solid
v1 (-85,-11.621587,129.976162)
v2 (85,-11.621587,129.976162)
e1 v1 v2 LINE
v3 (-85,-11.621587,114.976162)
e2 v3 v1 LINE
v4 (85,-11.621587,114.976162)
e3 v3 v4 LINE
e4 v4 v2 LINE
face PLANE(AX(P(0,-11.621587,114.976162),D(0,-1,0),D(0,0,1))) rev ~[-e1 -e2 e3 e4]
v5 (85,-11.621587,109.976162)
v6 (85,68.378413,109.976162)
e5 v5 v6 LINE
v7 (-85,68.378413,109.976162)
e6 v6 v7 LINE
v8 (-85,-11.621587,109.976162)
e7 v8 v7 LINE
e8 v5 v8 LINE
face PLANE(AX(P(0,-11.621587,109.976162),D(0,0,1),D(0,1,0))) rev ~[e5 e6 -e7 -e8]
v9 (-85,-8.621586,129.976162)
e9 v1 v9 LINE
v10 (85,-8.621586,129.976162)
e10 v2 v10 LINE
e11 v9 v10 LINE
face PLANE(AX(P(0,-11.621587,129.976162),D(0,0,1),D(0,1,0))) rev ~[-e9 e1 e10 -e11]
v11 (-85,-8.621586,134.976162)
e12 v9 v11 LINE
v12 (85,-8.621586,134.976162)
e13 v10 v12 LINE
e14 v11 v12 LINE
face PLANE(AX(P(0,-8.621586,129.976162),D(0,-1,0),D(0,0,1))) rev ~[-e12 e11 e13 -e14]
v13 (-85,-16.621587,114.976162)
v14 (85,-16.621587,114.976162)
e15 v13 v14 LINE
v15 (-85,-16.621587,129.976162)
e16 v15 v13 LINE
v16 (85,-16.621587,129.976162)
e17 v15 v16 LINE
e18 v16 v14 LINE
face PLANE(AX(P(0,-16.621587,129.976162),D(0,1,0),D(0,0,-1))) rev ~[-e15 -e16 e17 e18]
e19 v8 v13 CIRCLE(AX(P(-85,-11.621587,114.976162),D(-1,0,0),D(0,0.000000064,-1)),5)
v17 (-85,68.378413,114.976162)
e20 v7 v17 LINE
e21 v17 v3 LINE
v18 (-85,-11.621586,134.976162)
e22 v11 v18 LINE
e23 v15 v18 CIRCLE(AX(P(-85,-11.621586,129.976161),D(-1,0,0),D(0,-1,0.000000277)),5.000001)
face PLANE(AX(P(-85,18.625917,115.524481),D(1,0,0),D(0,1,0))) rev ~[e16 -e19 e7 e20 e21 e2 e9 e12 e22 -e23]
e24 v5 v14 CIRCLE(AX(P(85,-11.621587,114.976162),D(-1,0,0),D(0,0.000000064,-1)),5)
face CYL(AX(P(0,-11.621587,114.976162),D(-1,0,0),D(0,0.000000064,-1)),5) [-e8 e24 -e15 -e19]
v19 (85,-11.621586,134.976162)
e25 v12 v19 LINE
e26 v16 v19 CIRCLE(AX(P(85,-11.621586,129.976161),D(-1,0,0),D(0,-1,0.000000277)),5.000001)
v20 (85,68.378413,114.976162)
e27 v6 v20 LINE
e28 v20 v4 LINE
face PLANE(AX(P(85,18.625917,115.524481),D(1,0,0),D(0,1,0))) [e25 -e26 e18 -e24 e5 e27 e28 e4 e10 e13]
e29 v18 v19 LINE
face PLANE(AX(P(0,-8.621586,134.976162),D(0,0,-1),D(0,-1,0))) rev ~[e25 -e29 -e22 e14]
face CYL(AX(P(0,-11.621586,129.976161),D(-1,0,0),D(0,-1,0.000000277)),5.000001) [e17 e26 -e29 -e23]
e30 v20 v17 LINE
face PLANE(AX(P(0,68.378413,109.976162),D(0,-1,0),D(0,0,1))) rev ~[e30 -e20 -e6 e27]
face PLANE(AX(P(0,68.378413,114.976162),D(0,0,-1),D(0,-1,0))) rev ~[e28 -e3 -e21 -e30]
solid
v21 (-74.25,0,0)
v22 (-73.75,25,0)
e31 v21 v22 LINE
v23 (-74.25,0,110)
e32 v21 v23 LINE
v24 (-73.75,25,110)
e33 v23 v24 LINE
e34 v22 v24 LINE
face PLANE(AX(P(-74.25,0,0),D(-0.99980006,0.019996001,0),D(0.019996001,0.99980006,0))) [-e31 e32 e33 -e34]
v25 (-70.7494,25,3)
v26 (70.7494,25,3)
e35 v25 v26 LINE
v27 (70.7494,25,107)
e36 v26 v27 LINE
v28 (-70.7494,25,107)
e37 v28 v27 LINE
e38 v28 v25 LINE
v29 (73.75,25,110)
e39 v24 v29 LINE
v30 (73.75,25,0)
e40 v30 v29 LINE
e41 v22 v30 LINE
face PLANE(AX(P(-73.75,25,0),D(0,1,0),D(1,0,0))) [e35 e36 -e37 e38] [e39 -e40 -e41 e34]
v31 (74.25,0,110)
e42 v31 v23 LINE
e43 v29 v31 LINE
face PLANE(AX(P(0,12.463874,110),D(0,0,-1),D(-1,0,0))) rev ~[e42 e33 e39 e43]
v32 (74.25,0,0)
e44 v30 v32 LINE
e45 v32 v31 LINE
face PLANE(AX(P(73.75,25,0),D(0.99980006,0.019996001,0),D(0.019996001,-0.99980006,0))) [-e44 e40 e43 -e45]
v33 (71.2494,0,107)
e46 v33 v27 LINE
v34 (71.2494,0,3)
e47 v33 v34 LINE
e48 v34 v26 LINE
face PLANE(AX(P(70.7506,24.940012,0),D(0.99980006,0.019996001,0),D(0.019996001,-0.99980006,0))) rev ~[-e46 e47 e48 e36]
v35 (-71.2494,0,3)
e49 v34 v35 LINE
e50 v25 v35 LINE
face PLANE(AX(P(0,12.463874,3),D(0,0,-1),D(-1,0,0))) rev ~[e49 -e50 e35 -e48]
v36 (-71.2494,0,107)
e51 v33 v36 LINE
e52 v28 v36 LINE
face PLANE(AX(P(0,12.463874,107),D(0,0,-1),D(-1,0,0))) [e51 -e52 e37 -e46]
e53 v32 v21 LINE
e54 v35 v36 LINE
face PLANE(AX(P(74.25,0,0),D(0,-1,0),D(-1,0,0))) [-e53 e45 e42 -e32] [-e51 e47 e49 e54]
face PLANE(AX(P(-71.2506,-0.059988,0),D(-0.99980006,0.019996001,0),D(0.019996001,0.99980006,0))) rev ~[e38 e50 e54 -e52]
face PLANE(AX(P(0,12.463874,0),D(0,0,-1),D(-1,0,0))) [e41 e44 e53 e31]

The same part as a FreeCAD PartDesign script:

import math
import FreeCAD as App
import Part
import Sketcher
from FreeCAD import Vector


def faces_at(feature, points):
    """Names of the faces that lie closest to the given points."""
    faces = feature.Shape.Faces
    near = lambda p: min(range(len(faces)), key=lambda i: faces[i].distToShape(Part.Vertex(*p))[0])
    return sorted({f"Face{near(p) + 1}" for p in points})


def add_polygon(sketch, points):
    """Adds a closed chain of lines whose ends are joined by coincident constraints."""
    first, n = sketch.GeometryCount, len(points)
    for a, b in zip(points, points[1:] + points[:1]):
        sketch.addGeometry(Part.LineSegment(App.Vector(*a, 0), App.Vector(*b, 0)), False)
    for i in range(n):
        sketch.addConstraint(Sketcher.Constraint("Coincident", first + i, 2, first + (i + 1) % n, 1))

doc = App.newDocument("Part")
params = doc.addObject("Spreadsheet::Sheet", "Params")
for row, (alias, value) in enumerate([
    ("sketch1_width", "147.5 mm"),
    ("sketch1_width2", "148.5 mm"),
    ("pad1_length", "110 mm"),
    ("thickness_wall", "3 mm"),
    ("sketch2_radius", "5 mm"),
    ("sketch2_width", "80 mm"),
    ("sketch2_width2", "3 mm"),
    ("sketch2_height", "15 mm"),
    ("pad2_length", "170 mm"),
], start=1):
    params.set(f"A{row}", alias)
    params.set(f"B{row}", "=" + value)
    params.setAlias(f"B{row}", alias)

body = doc.addObject("PartDesign::Body", "Body")

sketch1 = body.newObject("Sketcher::SketchObject", "Sketch")
sketch1.AttachmentSupport = (doc.getObject("XY_Plane"), [""])
sketch1.MapMode = "FlatFace"
add_polygon(sketch1, [(73.75, 25), (-73.75, 25), (-74.25, 0), (74.25, 0)])
sketch1.addConstraint([
    Sketcher.Constraint("Horizontal", 0),
    Sketcher.Constraint("Horizontal", 2),
    Sketcher.Constraint("Symmetric", 1, 2, 2, 2, -1, 1),
    Sketcher.Constraint("Equal", 1, 3),
    Sketcher.Constraint("DistanceX", 0, 2, 0, 1, 147.5),
    Sketcher.Constraint("DistanceX", 2, 1, 2, 2, 148.5),
    Sketcher.Constraint("DistanceY", -1, 1, 0, 2, 25.0),
])
sketch1.setExpression("Constraints[8]", "Params.sketch1_width")
sketch1.setExpression("Constraints[9]", "Params.sketch1_width2")
pad1 = body.newObject("PartDesign::Pad", "Pad")
pad1.Profile = sketch1
pad1.setExpression("Length", "Params.pad1_length")
doc.recompute()

thickness = body.newObject("PartDesign::Thickness", "Thickness")
thickness.Base = (pad1, faces_at(pad1, [(0, 0, 55), (0, 25, 55)]))
thickness.setExpression("Value", "Params.thickness_wall")
thickness.Reversed = True
thickness.Join = "Arc"
body2 = doc.addObject("PartDesign::Body", "Body001")

sketch2 = body2.newObject("Sketcher::SketchObject", "Sketch001")
sketch2.AttachmentSupport = (doc.getObject("YZ_Plane001"), [""])
sketch2.MapMode = "FlatFace"
sketch2.addGeometry([
    Part.LineSegment(Vector(-11.6, 115, 0), Vector(68.4, 115, 0)),
    Part.LineSegment(Vector(68.4, 115, 0), Vector(68.4, 110, 0)),
    Part.LineSegment(Vector(68.4, 110, 0), Vector(-11.6, 110, 0)),
    Part.ArcOfCircle(Part.Circle(Vector(-11.6, 115, 0), Vector(0, 0, 1), 5), math.radians(180), math.radians(270)),
    Part.LineSegment(Vector(-16.6, 115, 0), Vector(-16.6, 130, 0)),
    Part.ArcOfCircle(Part.Circle(Vector(-11.6, 130, 0), Vector(0, 0, 1), 5), math.radians(90), math.radians(180)),
    Part.LineSegment(Vector(-11.6, 135, 0), Vector(-8.6, 135, 0)),
    Part.LineSegment(Vector(-8.6, 135, 0), Vector(-8.6, 130, 0)),
    Part.LineSegment(Vector(-8.6, 130, 0), Vector(-11.6, 130, 0)),
    Part.LineSegment(Vector(-11.6, 130, 0), Vector(-11.6, 115, 0)),
], False)
sketch2.addConstraint([
    Sketcher.Constraint("Coincident", 0, 2, 1, 1),
    Sketcher.Constraint("Coincident", 1, 2, 2, 1),
    Sketcher.Constraint("Tangent", 2, 2, 3, 2),
    Sketcher.Constraint("Tangent", 3, 1, 4, 1),
    Sketcher.Constraint("Tangent", 4, 2, 5, 2),
    Sketcher.Constraint("Tangent", 5, 1, 6, 1),
    Sketcher.Constraint("Coincident", 6, 2, 7, 1),
    Sketcher.Constraint("Coincident", 7, 2, 8, 1),
    Sketcher.Constraint("Coincident", 8, 2, 9, 1),
    Sketcher.Constraint("Coincident", 9, 2, 0, 1),
    Sketcher.Constraint("Horizontal", 0),
    Sketcher.Constraint("Vertical", 1),
    Sketcher.Constraint("Horizontal", 2),
    Sketcher.Constraint("Vertical", 4),
    Sketcher.Constraint("Horizontal", 6),
    Sketcher.Constraint("Vertical", 7),
    Sketcher.Constraint("Horizontal", 8),
    Sketcher.Constraint("Vertical", 9),
    Sketcher.Constraint("Coincident", 8, 2, 5, 3),
    Sketcher.Constraint("Coincident", 9, 2, 3, 3),
    Sketcher.Constraint("Radius", 3, 5.0),
    Sketcher.Constraint("DistanceX", 0, 1, 0, 2, 80.0),
    Sketcher.Constraint("DistanceX", 6, 1, 6, 2, 3.0),
    Sketcher.Constraint("DistanceY", 4, 1, 4, 2, 15.0),
    Sketcher.Constraint("DistanceY", -1, 1, 3, 3, 114.976162),
    Sketcher.Constraint("DistanceX", 3, 3, -1, 1, 11.621587),
])
sketch2.setExpression("Constraints[20]", "Params.sketch2_radius")
sketch2.setExpression("Constraints[21]", "Params.sketch2_width")
sketch2.setExpression("Constraints[22]", "Params.sketch2_width2")
sketch2.setExpression("Constraints[23]", "Params.sketch2_height")
pad2 = body2.newObject("PartDesign::Pad", "Pad001")
pad2.Profile = sketch2
pad2.setExpression("Length", "Params.pad2_length")
pad2.Midplane = True

doc.recompute()
